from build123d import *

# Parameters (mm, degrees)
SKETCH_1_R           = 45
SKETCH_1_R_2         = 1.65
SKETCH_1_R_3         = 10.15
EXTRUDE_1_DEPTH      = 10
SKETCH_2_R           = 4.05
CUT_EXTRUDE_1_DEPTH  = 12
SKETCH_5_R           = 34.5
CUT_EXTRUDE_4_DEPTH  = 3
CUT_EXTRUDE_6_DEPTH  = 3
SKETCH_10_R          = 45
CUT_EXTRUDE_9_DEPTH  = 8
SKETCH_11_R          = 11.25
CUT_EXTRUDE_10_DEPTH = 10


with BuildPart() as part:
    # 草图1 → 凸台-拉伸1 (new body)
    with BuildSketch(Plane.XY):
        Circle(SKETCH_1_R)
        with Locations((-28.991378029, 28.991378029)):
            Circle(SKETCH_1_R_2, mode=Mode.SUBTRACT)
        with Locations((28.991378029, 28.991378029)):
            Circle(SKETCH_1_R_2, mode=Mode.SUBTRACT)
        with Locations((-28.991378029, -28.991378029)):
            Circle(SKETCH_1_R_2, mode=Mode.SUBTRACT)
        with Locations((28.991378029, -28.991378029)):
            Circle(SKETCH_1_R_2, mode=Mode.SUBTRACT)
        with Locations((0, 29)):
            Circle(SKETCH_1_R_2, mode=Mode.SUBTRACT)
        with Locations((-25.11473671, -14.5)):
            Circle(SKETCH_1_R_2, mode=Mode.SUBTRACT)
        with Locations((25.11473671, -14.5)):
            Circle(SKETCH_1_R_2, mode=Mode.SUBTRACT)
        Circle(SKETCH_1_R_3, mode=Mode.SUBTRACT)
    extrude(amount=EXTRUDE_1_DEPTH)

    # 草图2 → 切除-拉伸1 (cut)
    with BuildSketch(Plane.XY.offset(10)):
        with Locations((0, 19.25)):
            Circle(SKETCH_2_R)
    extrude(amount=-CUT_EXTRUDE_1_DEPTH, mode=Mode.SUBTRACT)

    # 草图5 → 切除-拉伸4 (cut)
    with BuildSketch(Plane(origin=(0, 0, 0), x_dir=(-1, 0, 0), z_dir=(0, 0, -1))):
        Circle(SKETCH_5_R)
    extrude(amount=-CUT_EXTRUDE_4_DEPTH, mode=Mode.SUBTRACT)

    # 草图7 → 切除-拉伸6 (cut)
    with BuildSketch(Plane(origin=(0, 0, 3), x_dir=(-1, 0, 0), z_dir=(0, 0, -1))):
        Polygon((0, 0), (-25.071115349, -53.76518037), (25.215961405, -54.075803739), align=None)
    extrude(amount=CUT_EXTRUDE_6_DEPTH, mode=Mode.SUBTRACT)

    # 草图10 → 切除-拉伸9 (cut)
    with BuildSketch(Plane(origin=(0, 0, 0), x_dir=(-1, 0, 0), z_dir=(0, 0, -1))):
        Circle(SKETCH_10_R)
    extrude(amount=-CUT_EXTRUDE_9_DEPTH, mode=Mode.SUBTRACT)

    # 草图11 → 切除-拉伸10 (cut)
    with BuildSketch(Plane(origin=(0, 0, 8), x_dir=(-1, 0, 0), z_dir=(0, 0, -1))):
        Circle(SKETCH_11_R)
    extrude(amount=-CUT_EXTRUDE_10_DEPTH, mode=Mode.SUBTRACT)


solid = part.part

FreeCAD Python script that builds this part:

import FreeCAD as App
import Part
import Sketcher
Q = App.Units.Quantity


def add_polygon(sketch, points):
    """Adds a closed chain of lines whose ends are joined by coincident constraints."""
    first, n = sketch.GeometryCount, len(points)
    for a, b in zip(points, points[1:] + points[:1]):
        sketch.addGeometry(Part.LineSegment(App.Vector(*a, 0), App.Vector(*b, 0)), False)
    for i in range(n):
        sketch.addConstraint(Sketcher.Constraint("Coincident", first + i, 2, first + (i + 1) % n, 1))

doc = App.newDocument("Part")
body = doc.addObject("PartDesign::Body", "Body")

# Sketch on XY plane
sketch1 = doc.addObject("Sketcher::SketchObject", "Sketch")
body.addObject(sketch1)
sketch1.AttachmentSupport = (doc.XY_Plane, [""])
sketch1.MapMode = "FlatFace"
sketch1.addGeometry([
    Part.Circle(App.Vector(0, 0, 0), App.Vector(0, 0, 1), 45),  # 0
    Part.Circle(App.Vector(-28.991378, -28.991378, 0), App.Vector(0, 0, 1), 1.65),  # 1
    Part.Circle(App.Vector(-25.114737, -14.5, 0), App.Vector(0, 0, 1), 1.65),  # 2
    Part.Circle(App.Vector(0, 0, 0), App.Vector(0, 0, 1), 10.15),  # 3
    Part.Circle(App.Vector(28.991378, -28.991378, 0), App.Vector(0, 0, 1), 1.65),  # 4
    Part.Circle(App.Vector(25.114737, -14.5, 0), App.Vector(0, 0, 1), 1.65),  # 5
    Part.Circle(App.Vector(-28.991378, 28.991378, 0), App.Vector(0, 0, 1), 1.65),  # 6
    Part.Circle(App.Vector(0, 29, 0), App.Vector(0, 0, 1), 1.65),  # 7
    Part.Circle(App.Vector(28.991378, 28.991378, 0), App.Vector(0, 0, 1), 1.65),  # 8
], False)
sketch1.addConstraint([
    Sketcher.Constraint("Coincident", 0, 3, -1, 1),
    Sketcher.Constraint("Coincident", 3, 3, -1, 1),
    Sketcher.Constraint("Equal", 1, 2),
    Sketcher.Constraint("Equal", 2, 4),
    Sketcher.Constraint("Equal", 4, 5),
    Sketcher.Constraint("Equal", 5, 6),
    Sketcher.Constraint("Equal", 6, 7),
    Sketcher.Constraint("Equal", 7, 8),
    Sketcher.Constraint("Symmetric", 4, 3, 6, 3, -1, 1),
    Sketcher.Constraint("Symmetric", 1, 3, 8, 3, -1, 1),
    Sketcher.Constraint("Symmetric", 1, 3, 4, 3, -2),
    Sketcher.Constraint("Symmetric", 2, 3, 5, 3, -2),
    Sketcher.Constraint("PointOnObject", 7, 3, -2),
    Sketcher.Constraint("Diameter", 0, 90.0),
    Sketcher.Constraint("Diameter", 1, 3.3),
    Sketcher.Constraint("Diameter", 3, 20.3),
    Sketcher.Constraint("DistanceY", -1, 1, 7, 3, 29.0),
    Sketcher.Constraint("DistanceY", 2, 3, -1, 1, 14.5),
    Sketcher.Constraint("DistanceX", 1, 3, -1, 1, 28.991378),
    Sketcher.Constraint("DistanceY", 1, 3, -1, 1, 28.991378),
    Sketcher.Constraint("DistanceX", 1, 3, 2, 3, 3.876641),
])
pad1 = doc.addObject("PartDesign::Pad", "Pad")
body.addObject(pad1)
pad1.Profile = sketch1
pad1.Length = 10

# Sketch on XY plane
sketch2 = doc.addObject("Sketcher::SketchObject", "Sketch001")
body.addObject(sketch2)
sketch2.AttachmentSupport = (doc.XY_Plane, [""])
sketch2.MapMode = "FlatFace"
sketch2.AttachmentOffset = App.Placement(App.Vector(0, 0, 10), App.Rotation())
sketch2.addGeometry(Part.Circle(App.Vector(0, 19.25, 0), App.Vector(0, 0, 1), 4.05), False)
sketch2.addConstraint([
    Sketcher.Constraint("PointOnObject", 0, 3, -2),
    Sketcher.Constraint("Diameter", 0, 8.1),
    Sketcher.Constraint("DistanceY", -1, 1, 0, 3, 19.25),
])
pocket1 = doc.addObject("PartDesign::Pocket", "Pocket")
body.addObject(pocket1)
pocket1.Profile = sketch2
pocket1.Length = 12

# Sketch on XY plane
sketch3 = doc.addObject("Sketcher::SketchObject", "Sketch002")
body.addObject(sketch3)
sketch3.AttachmentSupport = (doc.XY_Plane, [""])
sketch3.MapMode = "FlatFace"
sketch3.addGeometry(Part.Circle(App.Vector(0, 0, 0), App.Vector(0, 0, 1), 34.5), False)
sketch3.addConstraint([
    Sketcher.Constraint("Coincident", 0, 3, -1, 1),
    Sketcher.Constraint("Diameter", 0, 69.0),
])
pocket2 = doc.addObject("PartDesign::Pocket", "Pocket001")
body.addObject(pocket2)
pocket2.Profile = sketch3
pocket2.Length = 3
pocket2.Reversed = True

# Sketch on XY plane
sketch4 = doc.addObject("Sketcher::SketchObject", "Sketch003")
body.addObject(sketch4)
sketch4.AttachmentSupport = (doc.XY_Plane, [""])
sketch4.MapMode = "FlatFace"
sketch4.AttachmentOffset = App.Placement(App.Vector(0, 0, 3), App.Rotation())
add_polygon(sketch4, [(0, 0), (25.071115, -53.76518), (-25.215961, -54.075804)])  # lines 0-2
sketch4.addConstraint([
    Sketcher.Constraint("Coincident", 2, 2, -1, 1),
    Sketcher.Constraint("Angle", 0, Q("-65 deg")),
    Sketcher.Constraint("Angle", 2, Q("65 deg")),
    Sketcher.Constraint("DistanceY", 0, 2, -1, 1, 53.76518),
    Sketcher.Constraint("DistanceX", 1, 2, -1, 1, 25.215961),
])
pocket3 = doc.addObject("PartDesign::Pocket", "Pocket002")
body.addObject(pocket3)
pocket3.Profile = sketch4
pocket3.Length = 3

# Sketch on XY plane
sketch5 = doc.addObject("Sketcher::SketchObject", "Sketch004")
body.addObject(sketch5)
sketch5.AttachmentSupport = (doc.XY_Plane, [""])
sketch5.MapMode = "FlatFace"
sketch5.addGeometry(Part.Circle(App.Vector(0, 0, 0), App.Vector(0, 0, 1), 45), False)
sketch5.addConstraint([
    Sketcher.Constraint("Coincident", 0, 3, -1, 1),
    Sketcher.Constraint("Diameter", 0, 90.0),
])
pocket4 = doc.addObject("PartDesign::Pocket", "Pocket003")
body.addObject(pocket4)
pocket4.Profile = sketch5
pocket4.Length = 8
pocket4.Reversed = True

# Sketch on XY plane
sketch6 = doc.addObject("Sketcher::SketchObject", "Sketch005")
body.addObject(sketch6)
sketch6.AttachmentSupport = (doc.XY_Plane, [""])
sketch6.MapMode = "FlatFace"
sketch6.AttachmentOffset = App.Placement(App.Vector(0, 0, 8), App.Rotation())
sketch6.addGeometry(Part.Circle(App.Vector(0, 0, 0), App.Vector(0, 0, 1), 11.25), False)
sketch6.addConstraint([
    Sketcher.Constraint("Coincident", 0, 3, -1, 1),
    Sketcher.Constraint("Diameter", 0, 22.5),
])
pocket5 = doc.addObject("PartDesign::Pocket", "Pocket004")
body.addObject(pocket5)
pocket5.Profile = sketch6
pocket5.Length = 10
pocket5.Reversed = True

doc.recompute()
